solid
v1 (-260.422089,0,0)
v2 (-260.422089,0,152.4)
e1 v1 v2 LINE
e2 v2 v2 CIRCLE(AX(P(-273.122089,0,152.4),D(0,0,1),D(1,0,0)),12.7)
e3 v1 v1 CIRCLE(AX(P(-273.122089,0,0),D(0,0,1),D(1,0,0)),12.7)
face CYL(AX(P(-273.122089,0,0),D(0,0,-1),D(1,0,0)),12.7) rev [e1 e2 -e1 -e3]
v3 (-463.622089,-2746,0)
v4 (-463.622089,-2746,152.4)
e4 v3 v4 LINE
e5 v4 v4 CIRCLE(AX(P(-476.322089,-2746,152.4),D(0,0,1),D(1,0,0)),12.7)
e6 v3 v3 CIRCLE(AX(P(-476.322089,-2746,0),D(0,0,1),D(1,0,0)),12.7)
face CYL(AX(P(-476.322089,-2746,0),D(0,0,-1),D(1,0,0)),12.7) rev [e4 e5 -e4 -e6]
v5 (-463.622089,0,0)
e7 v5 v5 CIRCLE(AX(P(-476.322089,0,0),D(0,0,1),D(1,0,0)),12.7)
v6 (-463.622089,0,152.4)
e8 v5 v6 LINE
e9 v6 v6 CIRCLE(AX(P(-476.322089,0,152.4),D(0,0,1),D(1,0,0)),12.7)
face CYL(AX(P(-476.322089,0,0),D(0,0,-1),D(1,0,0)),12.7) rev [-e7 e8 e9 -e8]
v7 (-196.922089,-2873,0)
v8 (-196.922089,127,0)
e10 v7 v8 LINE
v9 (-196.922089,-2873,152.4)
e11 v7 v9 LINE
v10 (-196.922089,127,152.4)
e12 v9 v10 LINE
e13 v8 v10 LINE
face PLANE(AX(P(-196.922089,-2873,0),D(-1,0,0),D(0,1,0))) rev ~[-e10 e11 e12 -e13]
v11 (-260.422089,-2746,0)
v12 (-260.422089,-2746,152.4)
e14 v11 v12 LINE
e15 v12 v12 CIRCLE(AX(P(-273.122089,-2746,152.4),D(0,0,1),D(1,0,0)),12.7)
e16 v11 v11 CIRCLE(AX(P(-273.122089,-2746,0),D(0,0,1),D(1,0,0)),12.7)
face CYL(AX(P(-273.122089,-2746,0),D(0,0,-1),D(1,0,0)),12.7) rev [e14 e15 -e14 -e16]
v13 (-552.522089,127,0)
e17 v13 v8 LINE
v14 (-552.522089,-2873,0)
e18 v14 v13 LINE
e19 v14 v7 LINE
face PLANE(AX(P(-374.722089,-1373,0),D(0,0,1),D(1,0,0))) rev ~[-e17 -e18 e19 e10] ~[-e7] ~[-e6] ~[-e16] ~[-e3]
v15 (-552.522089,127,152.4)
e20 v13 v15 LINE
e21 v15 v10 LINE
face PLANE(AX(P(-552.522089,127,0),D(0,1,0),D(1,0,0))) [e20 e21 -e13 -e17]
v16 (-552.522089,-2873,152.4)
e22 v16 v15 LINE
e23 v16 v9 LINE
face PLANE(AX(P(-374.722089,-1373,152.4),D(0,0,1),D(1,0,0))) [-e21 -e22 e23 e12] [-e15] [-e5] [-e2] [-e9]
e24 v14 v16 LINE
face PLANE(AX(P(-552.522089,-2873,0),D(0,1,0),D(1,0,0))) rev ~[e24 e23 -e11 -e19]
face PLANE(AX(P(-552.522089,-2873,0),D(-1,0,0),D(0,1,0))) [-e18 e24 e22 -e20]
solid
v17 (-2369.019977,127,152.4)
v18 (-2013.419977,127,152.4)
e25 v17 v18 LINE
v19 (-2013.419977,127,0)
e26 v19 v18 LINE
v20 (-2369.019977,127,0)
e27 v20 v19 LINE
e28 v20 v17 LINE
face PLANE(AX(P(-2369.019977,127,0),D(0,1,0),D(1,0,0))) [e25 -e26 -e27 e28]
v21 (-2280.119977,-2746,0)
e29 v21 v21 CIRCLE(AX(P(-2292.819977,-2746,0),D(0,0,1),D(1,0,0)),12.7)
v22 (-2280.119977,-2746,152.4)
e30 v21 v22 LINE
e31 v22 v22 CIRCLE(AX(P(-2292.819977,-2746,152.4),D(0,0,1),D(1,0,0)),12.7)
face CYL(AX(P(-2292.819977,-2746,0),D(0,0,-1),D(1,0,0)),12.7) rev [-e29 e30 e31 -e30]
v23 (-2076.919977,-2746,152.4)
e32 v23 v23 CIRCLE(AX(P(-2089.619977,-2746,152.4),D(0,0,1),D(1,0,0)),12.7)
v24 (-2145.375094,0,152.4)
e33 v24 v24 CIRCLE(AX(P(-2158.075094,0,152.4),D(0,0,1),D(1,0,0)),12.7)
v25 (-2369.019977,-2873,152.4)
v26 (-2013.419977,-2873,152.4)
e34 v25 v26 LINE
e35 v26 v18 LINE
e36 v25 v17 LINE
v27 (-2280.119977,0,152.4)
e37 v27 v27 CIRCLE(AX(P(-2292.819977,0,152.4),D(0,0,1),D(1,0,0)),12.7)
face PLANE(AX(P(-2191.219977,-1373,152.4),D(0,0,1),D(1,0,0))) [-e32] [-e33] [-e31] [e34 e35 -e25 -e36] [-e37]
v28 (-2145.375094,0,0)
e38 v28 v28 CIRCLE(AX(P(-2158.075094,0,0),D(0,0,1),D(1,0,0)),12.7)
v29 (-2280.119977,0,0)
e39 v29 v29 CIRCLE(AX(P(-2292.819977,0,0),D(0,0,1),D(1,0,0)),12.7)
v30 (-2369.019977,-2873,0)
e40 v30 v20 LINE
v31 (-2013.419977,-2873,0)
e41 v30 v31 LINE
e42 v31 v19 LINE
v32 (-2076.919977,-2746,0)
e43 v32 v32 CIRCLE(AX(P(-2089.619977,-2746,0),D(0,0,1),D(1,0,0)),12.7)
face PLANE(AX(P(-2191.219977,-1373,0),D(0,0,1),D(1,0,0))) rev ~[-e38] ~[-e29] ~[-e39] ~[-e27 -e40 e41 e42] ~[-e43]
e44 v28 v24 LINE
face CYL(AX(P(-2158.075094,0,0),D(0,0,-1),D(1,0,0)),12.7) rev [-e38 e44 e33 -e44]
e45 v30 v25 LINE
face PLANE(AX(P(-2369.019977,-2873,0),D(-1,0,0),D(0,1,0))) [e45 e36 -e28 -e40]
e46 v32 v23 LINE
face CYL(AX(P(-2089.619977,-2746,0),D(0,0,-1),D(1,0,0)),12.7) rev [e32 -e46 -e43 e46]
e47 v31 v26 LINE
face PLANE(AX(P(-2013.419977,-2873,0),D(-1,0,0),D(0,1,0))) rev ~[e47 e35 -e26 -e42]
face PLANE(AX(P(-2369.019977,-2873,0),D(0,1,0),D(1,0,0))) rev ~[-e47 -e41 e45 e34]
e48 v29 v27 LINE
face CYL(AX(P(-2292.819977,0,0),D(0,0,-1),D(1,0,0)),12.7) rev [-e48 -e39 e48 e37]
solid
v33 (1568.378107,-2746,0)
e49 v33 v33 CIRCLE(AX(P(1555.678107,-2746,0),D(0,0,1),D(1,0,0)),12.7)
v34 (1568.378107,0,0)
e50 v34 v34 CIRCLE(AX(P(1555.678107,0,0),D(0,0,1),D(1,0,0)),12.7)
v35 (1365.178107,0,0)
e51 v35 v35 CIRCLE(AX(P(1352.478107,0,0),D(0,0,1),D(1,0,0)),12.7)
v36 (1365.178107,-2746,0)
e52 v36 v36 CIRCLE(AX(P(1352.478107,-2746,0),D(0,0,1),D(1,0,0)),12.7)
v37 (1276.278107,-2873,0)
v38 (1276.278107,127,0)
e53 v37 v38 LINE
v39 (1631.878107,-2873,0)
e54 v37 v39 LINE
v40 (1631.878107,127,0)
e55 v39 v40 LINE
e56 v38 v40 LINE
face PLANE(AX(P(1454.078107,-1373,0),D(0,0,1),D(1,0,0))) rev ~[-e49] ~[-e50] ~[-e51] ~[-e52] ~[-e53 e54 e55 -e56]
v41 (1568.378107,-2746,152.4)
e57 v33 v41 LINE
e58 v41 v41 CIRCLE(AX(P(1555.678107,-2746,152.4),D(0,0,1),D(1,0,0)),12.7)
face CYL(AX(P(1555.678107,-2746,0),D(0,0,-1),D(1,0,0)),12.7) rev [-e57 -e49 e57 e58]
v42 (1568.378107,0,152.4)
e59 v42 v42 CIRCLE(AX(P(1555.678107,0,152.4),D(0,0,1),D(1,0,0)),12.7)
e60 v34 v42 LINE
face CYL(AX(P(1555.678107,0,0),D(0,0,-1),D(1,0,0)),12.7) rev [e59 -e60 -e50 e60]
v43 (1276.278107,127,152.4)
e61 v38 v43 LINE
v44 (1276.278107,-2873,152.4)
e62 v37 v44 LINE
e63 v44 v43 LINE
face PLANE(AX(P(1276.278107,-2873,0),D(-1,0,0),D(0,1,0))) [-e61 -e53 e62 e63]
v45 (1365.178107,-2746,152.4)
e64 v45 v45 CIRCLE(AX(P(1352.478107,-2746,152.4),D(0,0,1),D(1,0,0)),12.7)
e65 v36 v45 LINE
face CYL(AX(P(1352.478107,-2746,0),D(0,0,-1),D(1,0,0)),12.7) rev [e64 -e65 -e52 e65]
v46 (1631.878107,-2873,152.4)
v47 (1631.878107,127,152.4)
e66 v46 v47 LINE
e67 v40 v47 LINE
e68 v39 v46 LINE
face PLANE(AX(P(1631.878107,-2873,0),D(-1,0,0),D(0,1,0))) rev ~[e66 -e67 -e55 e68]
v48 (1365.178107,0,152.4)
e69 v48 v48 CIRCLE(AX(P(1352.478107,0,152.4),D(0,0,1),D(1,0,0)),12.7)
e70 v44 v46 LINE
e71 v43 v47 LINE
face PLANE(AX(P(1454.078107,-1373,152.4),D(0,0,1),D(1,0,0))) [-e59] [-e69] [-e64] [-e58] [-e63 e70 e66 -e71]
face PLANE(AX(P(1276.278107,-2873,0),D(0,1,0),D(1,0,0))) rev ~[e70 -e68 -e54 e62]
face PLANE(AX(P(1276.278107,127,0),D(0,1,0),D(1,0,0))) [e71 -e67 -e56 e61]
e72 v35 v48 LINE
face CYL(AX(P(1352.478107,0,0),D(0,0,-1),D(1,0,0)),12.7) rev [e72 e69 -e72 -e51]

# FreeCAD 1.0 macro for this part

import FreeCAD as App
import Part
import Sketcher
Q = App.Units.Quantity

doc = App.newDocument("Part")
body = doc.addObject("PartDesign::Body", "Body")
body.AllowCompound = True

sketch1 = doc.addObject("Sketcher::SketchObject", "Sketch")
body.addObject(sketch1)
sketch1.AttachmentSupport = (doc.XY_Plane, [""])
sketch1.MapMode = "FlatFace"
sketch1.addGeometry([
    Part.LineSegment(App.Vector(-2369, 127, 0), App.Vector(-2369, -2873, 0)),
    Part.LineSegment(App.Vector(-2369, -2873, 0), App.Vector(-2013, -2873, 0)),
    Part.LineSegment(App.Vector(-2013, -2873, 0), App.Vector(-2013, 127, 0)),
    Part.LineSegment(App.Vector(-2013, 127, 0), App.Vector(-2369, 127, 0)),
    Part.Circle(App.Vector(-2293, -2746, 0), App.Vector(0, 0, 1), 13),
    Part.Circle(App.Vector(-2090, -2746, 0), App.Vector(0, 0, 1), 13),
    Part.Circle(App.Vector(-2293, 0, 0), App.Vector(0, 0, 1), 13),
    Part.Circle(App.Vector(-2158, 0, 0), App.Vector(0, 0, 1), 13),
    Part.LineSegment(App.Vector(-553, 127, 0), App.Vector(-553, -2873, 0)),
    Part.LineSegment(App.Vector(-553, -2873, 0), App.Vector(-197, -2873, 0)),
    Part.LineSegment(App.Vector(-197, -2873, 0), App.Vector(-197, 127, 0)),
    Part.LineSegment(App.Vector(-197, 127, 0), App.Vector(-553, 127, 0)),
    Part.Circle(App.Vector(-476, -2746, 0), App.Vector(0, 0, 1), 13),
    Part.Circle(App.Vector(-273, -2746, 0), App.Vector(0, 0, 1), 13),
    Part.Circle(App.Vector(-476, 0, 0), App.Vector(0, 0, 1), 13),
    Part.Circle(App.Vector(-273, 0, 0), App.Vector(0, 0, 1), 13),
    Part.LineSegment(App.Vector(1276, 127, 0), App.Vector(1276, -2873, 0)),
    Part.LineSegment(App.Vector(1276, -2873, 0), App.Vector(1632, -2873, 0)),
    Part.LineSegment(App.Vector(1632, -2873, 0), App.Vector(1632, 127, 0)),
    Part.LineSegment(App.Vector(1632, 127, 0), App.Vector(1276, 127, 0)),
    Part.Circle(App.Vector(1352, -2746, 0), App.Vector(0, 0, 1), 13),
    Part.Circle(App.Vector(1556, -2746, 0), App.Vector(0, 0, 1), 13),
    Part.Circle(App.Vector(1352, 0, 0), App.Vector(0, 0, 1), 13),
    Part.Circle(App.Vector(1556, 0, 0), App.Vector(0, 0, 1), 13),
], False)
sketch1.addConstraint([
    Sketcher.Constraint("Coincident", 0, 2, 1, 1),
    Sketcher.Constraint("Coincident", 1, 2, 2, 1),
    Sketcher.Constraint("Coincident", 2, 2, 3, 1),
    Sketcher.Constraint("Coincident", 3, 2, 0, 1),
    Sketcher.Constraint("Coincident", 8, 2, 9, 1),
    Sketcher.Constraint("Coincident", 9, 2, 10, 1),
    Sketcher.Constraint("Coincident", 10, 2, 11, 1),
    Sketcher.Constraint("Coincident", 11, 2, 8, 1),
    Sketcher.Constraint("Coincident", 16, 2, 17, 1),
    Sketcher.Constraint("Coincident", 17, 2, 18, 1),
    Sketcher.Constraint("Coincident", 18, 2, 19, 1),
    Sketcher.Constraint("Coincident", 19, 2, 16, 1),
    Sketcher.Constraint("Vertical", 0),
    Sketcher.Constraint("Horizontal", 1),
    Sketcher.Constraint("Vertical", 2),
    Sketcher.Constraint("Horizontal", 3),
    Sketcher.Constraint("Vertical", 8),
    Sketcher.Constraint("Horizontal", 9),
    Sketcher.Constraint("Vertical", 10),
    Sketcher.Constraint("Horizontal", 11),
    Sketcher.Constraint("Vertical", 16),
    Sketcher.Constraint("Horizontal", 17),
    Sketcher.Constraint("Vertical", 18),
    Sketcher.Constraint("Horizontal", 19),
    Sketcher.Constraint("Equal", 4, 5),
    Sketcher.Constraint("Equal", 5, 6),
    Sketcher.Constraint("Equal", 6, 7),
    Sketcher.Constraint("Equal", 7, 12),
    Sketcher.Constraint("Equal", 12, 13),
    Sketcher.Constraint("Equal", 13, 14),
    Sketcher.Constraint("Equal", 14, 15),
    Sketcher.Constraint("Equal", 15, 20),
    Sketcher.Constraint("Equal", 20, 21),
    Sketcher.Constraint("Equal", 21, 22),
    Sketcher.Constraint("Equal", 22, 23),
    Sketcher.Constraint("PointOnObject", 6, 3, -1),
    Sketcher.Constraint("PointOnObject", 7, 3, -1),
    Sketcher.Constraint("PointOnObject", 14, 3, -1),
    Sketcher.Constraint("PointOnObject", 15, 3, -1),
    Sketcher.Constraint("PointOnObject", 22, 3, -1),
    Sketcher.Constraint("PointOnObject", 23, 3, -1),
    Sketcher.Constraint("Horizontal", 4, 3, 5, 3),
    Sketcher.Constraint("Horizontal", 5, 3, 12, 3),
    Sketcher.Constraint("Horizontal", 12, 3, 13, 3),
    Sketcher.Constraint("Horizontal", 13, 3, 20, 3),
    Sketcher.Constraint("Horizontal", 20, 3, 21, 3),
    Sketcher.Constraint("Horizontal", 1, 2, 8, 2),
    Sketcher.Constraint("Horizontal", 3, 2, 10, 2),
    Sketcher.Constraint("Horizontal", 9, 2, 16, 2),
    Sketcher.Constraint("Horizontal", 11, 2, 18, 2),
    Sketcher.Constraint("Vertical", 4, 3, 6, 3),
    Sketcher.Constraint("Vertical", 12, 3, 14, 3),
    Sketcher.Constraint("Vertical", 13, 3, 15, 3),
    Sketcher.Constraint("Vertical", 20, 3, 22, 3),
    Sketcher.Constraint("Vertical", 21, 3, 23, 3),
    Sketcher.Constraint("Equal", 3, 9),
    Sketcher.Constraint("Equal", 11, 17),
    Sketcher.Constraint("Diameter", 4, Q("1 in")),
    Sketcher.Constraint("DistanceX", 1, 1, 1, 2, Q("14 in")),
    Sketcher.Constraint("DistanceY", -1, 1, 2, 2, Q("5 in")),
    Sketcher.Constraint("DistanceX", 4, 3, 5, 3, Q("8 in")),
    Sketcher.Constraint("DistanceX", 12, 3, 13, 3, Q("8 in")),
    Sketcher.Constraint("DistanceX", 20, 3, 21, 3, Q("8 in")),
    Sketcher.Constraint("DistanceX", 0, 2, 4, 3, Q("3 in")),
    Sketcher.Constraint("DistanceY", 0, 2, 4, 3, Q("5 in")),
    Sketcher.Constraint("DistanceX", 8, 2, 12, 3, Q("3 in")),
    Sketcher.Constraint("DistanceX", 16, 2, 20, 3, Q("3 in")),
    Sketcher.Constraint("DistanceY", 0, 2, 0, 1, Q("3000 mm")),
    Sketcher.Constraint("DistanceX", 12, 3, -1, 1, Q("476.322089 mm")),
    Sketcher.Constraint("DistanceX", 4, 3, 12, 3, Q("1816.497888 mm")),
    Sketcher.Constraint("DistanceX", 7, 3, -1, 1, Q("2158.075094 mm")),
    Sketcher.Constraint("DistanceX", -1, 1, 20, 3, Q("1352.478107 mm")),
])
pad1 = doc.addObject("PartDesign::Pad", "Pad")
body.addObject(pad1)
pad1.Profile = sketch1
pad1.Length = Q("6 in")

doc.recompute()
